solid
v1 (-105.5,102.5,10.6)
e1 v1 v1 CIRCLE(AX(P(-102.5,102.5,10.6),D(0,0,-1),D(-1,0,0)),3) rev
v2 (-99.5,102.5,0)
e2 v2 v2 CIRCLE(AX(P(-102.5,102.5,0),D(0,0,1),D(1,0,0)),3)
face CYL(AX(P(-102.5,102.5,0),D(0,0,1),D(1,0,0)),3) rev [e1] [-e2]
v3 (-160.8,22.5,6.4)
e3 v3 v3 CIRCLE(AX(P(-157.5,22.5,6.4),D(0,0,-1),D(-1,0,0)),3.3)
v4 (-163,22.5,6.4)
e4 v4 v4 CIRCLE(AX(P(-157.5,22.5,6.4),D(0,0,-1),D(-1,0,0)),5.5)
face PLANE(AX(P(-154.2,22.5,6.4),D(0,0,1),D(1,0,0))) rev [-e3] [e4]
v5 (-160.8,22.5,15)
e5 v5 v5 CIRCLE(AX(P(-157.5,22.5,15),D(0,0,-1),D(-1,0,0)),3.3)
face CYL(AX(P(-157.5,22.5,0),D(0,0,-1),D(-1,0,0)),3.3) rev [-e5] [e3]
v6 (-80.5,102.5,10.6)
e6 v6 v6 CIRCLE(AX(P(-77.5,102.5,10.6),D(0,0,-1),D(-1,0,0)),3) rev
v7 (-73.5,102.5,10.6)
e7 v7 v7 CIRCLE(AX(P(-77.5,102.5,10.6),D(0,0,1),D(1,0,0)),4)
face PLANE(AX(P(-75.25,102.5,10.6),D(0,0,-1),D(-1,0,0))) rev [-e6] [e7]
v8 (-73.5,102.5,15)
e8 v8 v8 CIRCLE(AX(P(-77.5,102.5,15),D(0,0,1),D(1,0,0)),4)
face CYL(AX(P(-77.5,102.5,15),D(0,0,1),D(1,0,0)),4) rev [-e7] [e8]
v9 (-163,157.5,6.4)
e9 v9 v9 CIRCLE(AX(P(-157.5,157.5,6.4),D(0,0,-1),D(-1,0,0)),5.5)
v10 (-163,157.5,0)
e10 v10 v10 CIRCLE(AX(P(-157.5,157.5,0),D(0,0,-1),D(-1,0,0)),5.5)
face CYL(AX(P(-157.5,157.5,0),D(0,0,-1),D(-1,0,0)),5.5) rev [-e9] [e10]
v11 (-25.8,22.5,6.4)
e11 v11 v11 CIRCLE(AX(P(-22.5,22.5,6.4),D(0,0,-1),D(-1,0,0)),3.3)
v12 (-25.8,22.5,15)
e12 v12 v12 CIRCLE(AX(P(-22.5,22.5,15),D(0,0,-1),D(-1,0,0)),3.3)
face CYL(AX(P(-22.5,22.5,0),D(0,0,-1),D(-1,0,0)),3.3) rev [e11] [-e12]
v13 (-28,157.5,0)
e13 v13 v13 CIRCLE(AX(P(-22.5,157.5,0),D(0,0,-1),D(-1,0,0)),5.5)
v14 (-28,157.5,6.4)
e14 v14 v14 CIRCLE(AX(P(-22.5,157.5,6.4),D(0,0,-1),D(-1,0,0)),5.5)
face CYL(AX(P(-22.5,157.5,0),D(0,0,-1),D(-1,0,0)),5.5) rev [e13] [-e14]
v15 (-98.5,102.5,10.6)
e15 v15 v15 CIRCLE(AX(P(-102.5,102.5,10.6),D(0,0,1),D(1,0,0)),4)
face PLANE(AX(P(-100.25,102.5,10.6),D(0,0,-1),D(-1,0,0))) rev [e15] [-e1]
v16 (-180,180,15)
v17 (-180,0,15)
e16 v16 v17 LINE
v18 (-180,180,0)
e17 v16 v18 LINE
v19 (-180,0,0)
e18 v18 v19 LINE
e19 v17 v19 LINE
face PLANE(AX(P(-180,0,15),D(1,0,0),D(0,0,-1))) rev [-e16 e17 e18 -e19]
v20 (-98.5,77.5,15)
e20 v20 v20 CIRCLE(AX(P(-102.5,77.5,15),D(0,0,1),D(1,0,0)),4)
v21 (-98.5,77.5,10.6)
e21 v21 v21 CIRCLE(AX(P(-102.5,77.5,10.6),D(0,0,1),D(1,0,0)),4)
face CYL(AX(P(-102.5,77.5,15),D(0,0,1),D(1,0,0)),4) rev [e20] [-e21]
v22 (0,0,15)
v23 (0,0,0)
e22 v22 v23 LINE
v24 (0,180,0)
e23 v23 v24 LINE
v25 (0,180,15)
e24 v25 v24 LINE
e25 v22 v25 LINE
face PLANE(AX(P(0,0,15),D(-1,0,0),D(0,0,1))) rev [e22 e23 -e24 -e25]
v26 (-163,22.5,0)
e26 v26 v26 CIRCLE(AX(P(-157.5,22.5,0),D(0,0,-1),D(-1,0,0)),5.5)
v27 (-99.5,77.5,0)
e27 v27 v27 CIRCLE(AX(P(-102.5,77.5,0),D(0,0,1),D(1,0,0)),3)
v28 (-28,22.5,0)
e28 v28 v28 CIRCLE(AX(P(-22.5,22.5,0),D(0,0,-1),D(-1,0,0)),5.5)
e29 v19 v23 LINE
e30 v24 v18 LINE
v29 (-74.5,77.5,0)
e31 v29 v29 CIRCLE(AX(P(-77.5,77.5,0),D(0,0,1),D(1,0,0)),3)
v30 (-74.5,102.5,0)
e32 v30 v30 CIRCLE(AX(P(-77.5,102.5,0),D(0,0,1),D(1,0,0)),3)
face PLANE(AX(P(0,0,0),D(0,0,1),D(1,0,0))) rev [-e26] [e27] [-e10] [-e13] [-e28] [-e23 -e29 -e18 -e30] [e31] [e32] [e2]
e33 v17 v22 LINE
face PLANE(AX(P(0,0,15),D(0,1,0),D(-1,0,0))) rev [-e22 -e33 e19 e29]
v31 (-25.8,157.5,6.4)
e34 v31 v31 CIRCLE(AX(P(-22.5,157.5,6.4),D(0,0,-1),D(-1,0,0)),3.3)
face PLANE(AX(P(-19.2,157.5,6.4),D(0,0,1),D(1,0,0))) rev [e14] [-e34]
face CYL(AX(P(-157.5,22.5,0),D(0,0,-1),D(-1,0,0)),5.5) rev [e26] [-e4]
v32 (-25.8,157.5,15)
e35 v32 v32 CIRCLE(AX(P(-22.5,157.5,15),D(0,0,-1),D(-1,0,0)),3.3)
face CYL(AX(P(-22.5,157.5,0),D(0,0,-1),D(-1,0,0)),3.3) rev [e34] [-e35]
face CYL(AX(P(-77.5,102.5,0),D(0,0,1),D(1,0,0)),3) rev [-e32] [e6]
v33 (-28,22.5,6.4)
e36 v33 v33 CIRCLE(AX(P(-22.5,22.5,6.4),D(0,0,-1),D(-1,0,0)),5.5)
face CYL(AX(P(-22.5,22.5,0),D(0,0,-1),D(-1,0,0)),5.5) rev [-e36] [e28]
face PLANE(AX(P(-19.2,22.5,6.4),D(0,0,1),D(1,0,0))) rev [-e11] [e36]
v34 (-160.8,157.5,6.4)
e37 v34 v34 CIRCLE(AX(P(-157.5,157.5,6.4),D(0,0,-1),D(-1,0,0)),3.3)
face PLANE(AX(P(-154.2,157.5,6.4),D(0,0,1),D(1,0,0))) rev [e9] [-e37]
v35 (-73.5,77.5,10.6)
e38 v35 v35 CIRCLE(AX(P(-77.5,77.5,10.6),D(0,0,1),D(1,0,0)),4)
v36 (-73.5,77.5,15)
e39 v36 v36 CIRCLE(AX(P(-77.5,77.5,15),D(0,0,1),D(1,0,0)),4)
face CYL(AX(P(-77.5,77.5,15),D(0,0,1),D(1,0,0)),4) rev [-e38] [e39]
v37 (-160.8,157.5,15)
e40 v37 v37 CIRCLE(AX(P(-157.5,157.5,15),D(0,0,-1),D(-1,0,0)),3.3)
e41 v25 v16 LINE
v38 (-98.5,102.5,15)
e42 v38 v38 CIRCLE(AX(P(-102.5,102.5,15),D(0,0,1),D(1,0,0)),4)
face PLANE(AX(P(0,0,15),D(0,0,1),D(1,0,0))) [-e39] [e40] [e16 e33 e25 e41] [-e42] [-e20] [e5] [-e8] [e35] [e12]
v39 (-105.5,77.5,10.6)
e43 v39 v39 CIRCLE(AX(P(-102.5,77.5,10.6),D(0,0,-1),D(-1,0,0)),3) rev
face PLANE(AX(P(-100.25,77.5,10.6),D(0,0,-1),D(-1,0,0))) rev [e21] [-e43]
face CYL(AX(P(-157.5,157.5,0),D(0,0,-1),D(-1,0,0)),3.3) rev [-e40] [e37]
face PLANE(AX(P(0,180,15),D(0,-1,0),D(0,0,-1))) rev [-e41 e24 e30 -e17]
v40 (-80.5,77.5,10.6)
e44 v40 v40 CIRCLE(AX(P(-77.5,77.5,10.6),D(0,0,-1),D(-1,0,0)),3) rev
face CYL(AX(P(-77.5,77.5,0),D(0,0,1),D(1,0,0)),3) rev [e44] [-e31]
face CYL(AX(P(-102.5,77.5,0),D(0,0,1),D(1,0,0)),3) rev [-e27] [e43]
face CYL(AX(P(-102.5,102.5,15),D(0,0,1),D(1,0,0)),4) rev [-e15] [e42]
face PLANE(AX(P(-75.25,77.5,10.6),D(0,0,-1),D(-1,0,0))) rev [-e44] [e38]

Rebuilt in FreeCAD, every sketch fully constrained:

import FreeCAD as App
import Part
import Sketcher
from FreeCAD import Vector

doc = App.newDocument("Part")
body = doc.addObject("PartDesign::Body", "Body")

sketch1 = body.newObject("Sketcher::SketchObject", "Sketch")
sketch1.AttachmentSupport = (doc.getObject("XY_Plane"), [""])
sketch1.MapMode = "FlatFace"
sketch1.addGeometry([
    Part.LineSegment(Vector(-180, 180, 0), Vector(-180, 0, 0)),
    Part.LineSegment(Vector(-180, 0, 0), Vector(0, 0, 0)),
    Part.LineSegment(Vector(0, 0, 0), Vector(0, 180, 0)),
    Part.LineSegment(Vector(0, 180, 0), Vector(-180, 180, 0)),
    Part.Circle(Vector(-157.5, 22.5, 0), Vector(0, 0, 1), 3),
    Part.Circle(Vector(-22.5, 22.5, 0), Vector(0, 0, 1), 3),
    Part.Circle(Vector(-157.5, 157.5, 0), Vector(0, 0, 1), 3),
    Part.Circle(Vector(-22.5, 157.5, 0), Vector(0, 0, 1), 3),
], False)
sketch1.addConstraint([
    Sketcher.Constraint("Coincident", 0, 2, 1, 1),
    Sketcher.Constraint("Coincident", 1, 2, 2, 1),
    Sketcher.Constraint("Coincident", 2, 2, 3, 1),
    Sketcher.Constraint("Coincident", 3, 2, 0, 1),
    Sketcher.Constraint("Vertical", 0),
    Sketcher.Constraint("Horizontal", 1),
    Sketcher.Constraint("Vertical", 2),
    Sketcher.Constraint("Horizontal", 3),
    Sketcher.Constraint("Coincident", 1, 2, -1, 1),
    Sketcher.Constraint("Equal", 4, 5),
    Sketcher.Constraint("Equal", 5, 6),
    Sketcher.Constraint("Equal", 6, 7),
    Sketcher.Constraint("Horizontal", 4, 3, 5, 3),
    Sketcher.Constraint("Horizontal", 6, 3, 7, 3),
    Sketcher.Constraint("Vertical", 4, 3, 6, 3),
    Sketcher.Constraint("Vertical", 5, 3, 7, 3),
    Sketcher.Constraint("Equal", 3, 0),
    Sketcher.Constraint("Diameter", 4, 6.0),
    Sketcher.Constraint("DistanceX", 1, 1, 1, 2, 180.0),
    Sketcher.Constraint("DistanceX", 4, 3, 5, 3, 135.0),
    Sketcher.Constraint("DistanceY", 4, 3, 6, 3, 135.0),
    Sketcher.Constraint("DistanceX", 4, 3, -1, 1, 157.5),
    Sketcher.Constraint("DistanceY", -1, 1, 4, 3, 22.5),
])
pad1 = body.newObject("PartDesign::Pad", "Pad")
pad1.Profile = sketch1
pad1.Length = 15

sketch2 = body.newObject("Sketcher::SketchObject", "Sketch001")
sketch2.AttachmentSupport = (doc.getObject("XY_Plane"), [""])
sketch2.MapMode = "FlatFace"
sketch2.AttachmentOffset = App.Placement(Vector(0, 0, 15), App.Rotation())
sketch2.addGeometry([
    Part.Circle(Vector(-102.5, 77.5, 0), Vector(0, 0, 1), 3),
    Part.Circle(Vector(-77.5, 77.5, 0), Vector(0, 0, 1), 3),
    Part.Circle(Vector(-77.5, 102.5, 0), Vector(0, 0, 1), 3),
    Part.Circle(Vector(-102.5, 102.5, 0), Vector(0, 0, 1), 3),
], False)
sketch2.addConstraint([
    Sketcher.Constraint("Equal", 0, 1),
    Sketcher.Constraint("Equal", 1, 2),
    Sketcher.Constraint("Equal", 2, 3),
    Sketcher.Constraint("Horizontal", 0, 3, 1, 3),
    Sketcher.Constraint("Horizontal", 2, 3, 3, 3),
    Sketcher.Constraint("Vertical", 1, 3, 2, 3),
    Sketcher.Constraint("Vertical", 0, 3, 3, 3),
    Sketcher.Constraint("Diameter", 0, 6.0),
    Sketcher.Constraint("DistanceX", 0, 3, 1, 3, 25.0),
    Sketcher.Constraint("DistanceY", 1, 3, 2, 3, 25.0),
    Sketcher.Constraint("DistanceX", 0, 3, -1, 1, 102.5),
    Sketcher.Constraint("DistanceY", -1, 1, 0, 3, 77.5),
])
pocket1 = body.newObject("PartDesign::Pocket", "Pocket")
pocket1.Profile = sketch2
pocket1.Type = "ThroughAll"

sketch3 = body.newObject("Sketcher::SketchObject", "Sketch002")
sketch3.AttachmentSupport = (doc.getObject("XY_Plane"), [""])
sketch3.MapMode = "FlatFace"
sketch3.AttachmentOffset = App.Placement(Vector(0, 0, 15), App.Rotation())
sketch3.addGeometry([
    Part.Circle(Vector(-102.5, 77.5, 0), Vector(0, 0, 1), 2.2),
    Part.Circle(Vector(-102.5, 102.5, 0), Vector(0, 0, 1), 2.2),
    Part.Circle(Vector(-77.5, 102.5, 0), Vector(0, 0, 1), 2.2),
    Part.Circle(Vector(-77.5, 77.5, 0), Vector(0, 0, 1), 2.2),
], False)
sketch3.addConstraint([
    Sketcher.Constraint("Equal", 0, 1),
    Sketcher.Constraint("Equal", 1, 2),
    Sketcher.Constraint("Equal", 2, 3),
    Sketcher.Constraint("Horizontal", 1, 3, 2, 3),
    Sketcher.Constraint("Horizontal", 0, 3, 3, 3),
    Sketcher.Constraint("Vertical", 0, 3, 1, 3),
    Sketcher.Constraint("Vertical", 2, 3, 3, 3),
    Sketcher.Constraint("Diameter", 0, 4.5),
    Sketcher.Constraint("DistanceY", 0, 3, 1, 3, 25.0),
    Sketcher.Constraint("DistanceX", 1, 3, 2, 3, 25.0),
    Sketcher.Constraint("DistanceX", 0, 3, -1, 1, 102.5),
    Sketcher.Constraint("DistanceY", -1, 1, 0, 3, 77.5),
])
doc.recompute()
hole = body.newObject("PartDesign::Hole", "Hole")
hole.Profile = sketch3
hole.ThreadType = "None"
hole.Diameter = 4.5
hole.DepthType = "ThroughAll"
hole.HoleCutType = "Counterbore"
hole.HoleCutDiameter = 8
hole.HoleCutDepth = 4.4

sketch4 = body.newObject("Sketcher::SketchObject", "Sketch003")
sketch4.AttachmentSupport = (doc.getObject("XY_Plane"), [""])
sketch4.MapMode = "FlatFace"
sketch4.addGeometry([
    Part.Circle(Vector(-157.5, 22.5, 0), Vector(0, 0, 1), 3.3),
    Part.Circle(Vector(-22.5, 22.5, 0), Vector(0, 0, 1), 3.3),
    Part.Circle(Vector(-22.5, 157.5, 0), Vector(0, 0, 1), 3.3),
    Part.Circle(Vector(-157.5, 157.5, 0), Vector(0, 0, 1), 3.3),
], False)
sketch4.addConstraint([
    Sketcher.Constraint("Equal", 0, 1),
    Sketcher.Constraint("Equal", 1, 2),
    Sketcher.Constraint("Equal", 2, 3),
    Sketcher.Constraint("Horizontal", 0, 3, 1, 3),
    Sketcher.Constraint("Horizontal", 2, 3, 3, 3),
    Sketcher.Constraint("Vertical", 1, 3, 2, 3),
    Sketcher.Constraint("Vertical", 0, 3, 3, 3),
    Sketcher.Constraint("Diameter", 0, 6.6),
    Sketcher.Constraint("DistanceX", 0, 3, 1, 3, 135.0),
    Sketcher.Constraint("DistanceY", 1, 3, 2, 3, 135.0),
    Sketcher.Constraint("DistanceX", 0, 3, -1, 1, 157.5),
    Sketcher.Constraint("DistanceY", -1, 1, 0, 3, 22.5),
])
doc.recompute()
hole2 = body.newObject("PartDesign::Hole", "Hole001")
hole2.Profile = sketch4
hole2.ThreadType = "None"
hole2.Diameter = 6.6
hole2.DepthType = "ThroughAll"
hole2.HoleCutType = "Counterbore"
hole2.HoleCutDiameter = 11
hole2.HoleCutDepth = 6.4
hole2.Reversed = True

doc.recompute()
